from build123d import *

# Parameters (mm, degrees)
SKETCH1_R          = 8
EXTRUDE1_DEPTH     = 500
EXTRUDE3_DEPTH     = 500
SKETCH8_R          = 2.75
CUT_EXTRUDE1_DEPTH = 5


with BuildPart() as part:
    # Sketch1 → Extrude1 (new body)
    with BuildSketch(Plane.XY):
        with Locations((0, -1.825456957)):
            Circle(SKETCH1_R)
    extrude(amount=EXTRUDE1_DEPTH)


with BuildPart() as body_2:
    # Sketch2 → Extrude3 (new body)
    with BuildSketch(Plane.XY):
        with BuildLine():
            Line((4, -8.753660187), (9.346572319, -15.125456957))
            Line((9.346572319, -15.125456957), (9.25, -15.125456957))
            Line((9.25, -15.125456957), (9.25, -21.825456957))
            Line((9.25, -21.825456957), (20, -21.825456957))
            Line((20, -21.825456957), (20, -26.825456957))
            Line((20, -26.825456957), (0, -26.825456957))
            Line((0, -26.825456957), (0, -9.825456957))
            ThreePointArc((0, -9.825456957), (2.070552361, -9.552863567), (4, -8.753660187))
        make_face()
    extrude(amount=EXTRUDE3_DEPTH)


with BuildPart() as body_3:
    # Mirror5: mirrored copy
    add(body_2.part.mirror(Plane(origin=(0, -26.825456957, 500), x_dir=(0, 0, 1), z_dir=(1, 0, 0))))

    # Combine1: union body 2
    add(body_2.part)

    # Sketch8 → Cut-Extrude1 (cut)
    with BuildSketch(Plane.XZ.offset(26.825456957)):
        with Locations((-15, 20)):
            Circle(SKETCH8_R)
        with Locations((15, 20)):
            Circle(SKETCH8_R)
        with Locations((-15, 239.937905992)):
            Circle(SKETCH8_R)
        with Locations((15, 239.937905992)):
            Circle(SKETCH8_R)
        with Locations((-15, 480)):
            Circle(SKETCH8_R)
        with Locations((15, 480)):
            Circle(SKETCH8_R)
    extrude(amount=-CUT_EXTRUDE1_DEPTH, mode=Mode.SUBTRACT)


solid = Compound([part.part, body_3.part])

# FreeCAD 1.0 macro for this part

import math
import FreeCAD as App
import Part
import Sketcher

V = App.Vector
Q = App.Units.Quantity

doc = App.newDocument("Part")
body = doc.addObject("PartDesign::Body", "Body")

# Sketch on XY plane
sketch1 = doc.addObject("Sketcher::SketchObject", "Sketch")
body.addObject(sketch1)
sketch1.AttachmentSupport = (doc.XY_Plane, [""])
sketch1.MapMode = "FlatFace"
sketch1.addGeometry(Part.Circle(V(0, -1.825457, 0), V(0, 0, 1), 8), False)
sketch1.addConstraint(Sketcher.Constraint("PointOnObject", 0, 3, -2))
sketch1.addConstraint(Sketcher.Constraint("Diameter", 0, Q("16 mm")))
sketch1.addConstraint(Sketcher.Constraint("DistanceY", 0, 3, -1, 1, Q("1.825457 mm")))
pad1 = doc.addObject("PartDesign::Pad", "Pad")
body.addObject(pad1)
pad1.Profile = sketch1
pad1.Length = 500
body2 = doc.addObject("PartDesign::Body", "Body001")

# Sketch on XY plane
sketch2 = doc.addObject("Sketcher::SketchObject", "Sketch001")
body2.addObject(sketch2)
sketch2.AttachmentSupport = (doc.getObject("XY_Plane001"), [""])
sketch2.MapMode = "FlatFace"
sketch2.addGeometry(Part.LineSegment(V(9.346572, -15.125457, 0), V(4, -8.75366, 0)), False)
sketch2.addGeometry(Part.ArcOfCircle(Part.Circle(V(0, -1.825457, 0), V(0, 0, 1), 8), math.radians(-90), math.radians(-60)), False)
sketch2.addGeometry(Part.LineSegment(V(0, -9.825457, 0), V(0, -26.825457, 0)), False)
sketch2.addGeometry(Part.LineSegment(V(0, -26.825457, 0), V(20, -26.825457, 0)), False)
sketch2.addGeometry(Part.LineSegment(V(20, -26.825457, 0), V(20, -21.825457, 0)), False)
sketch2.addGeometry(Part.LineSegment(V(20, -21.825457, 0), V(9.25, -21.825457, 0)), False)
sketch2.addGeometry(Part.LineSegment(V(9.25, -21.825457, 0), V(9.25, -15.125457, 0)), False)
sketch2.addGeometry(Part.LineSegment(V(9.25, -15.125457, 0), V(9.346572, -15.125457, 0)), False)
sketch2.addConstraint(Sketcher.Constraint("Coincident", 0, 2, 1, 2))
sketch2.addConstraint(Sketcher.Constraint("Coincident", 1, 1, 2, 1))
sketch2.addConstraint(Sketcher.Constraint("Coincident", 2, 2, 3, 1))
sketch2.addConstraint(Sketcher.Constraint("Coincident", 3, 2, 4, 1))
sketch2.addConstraint(Sketcher.Constraint("Coincident", 4, 2, 5, 1))
sketch2.addConstraint(Sketcher.Constraint("Coincident", 5, 2, 6, 1))
sketch2.addConstraint(Sketcher.Constraint("Coincident", 6, 2, 7, 1))
sketch2.addConstraint(Sketcher.Constraint("Coincident", 7, 2, 0, 1))
sketch2.addConstraint(Sketcher.Constraint("Vertical", 2))
sketch2.addConstraint(Sketcher.Constraint("Horizontal", 3))
sketch2.addConstraint(Sketcher.Constraint("Vertical", 4))
sketch2.addConstraint(Sketcher.Constraint("Horizontal", 5))
sketch2.addConstraint(Sketcher.Constraint("Vertical", 6))
sketch2.addConstraint(Sketcher.Constraint("Horizontal", 7))
sketch2.addConstraint(Sketcher.Constraint("PointOnObject", 1, 3, -2))
sketch2.addConstraint(Sketcher.Constraint("PointOnObject", 1, 1, -2))
sketch2.addConstraint(Sketcher.Constraint("Radius", 1, Q("8 mm")))
sketch2.addConstraint(Sketcher.Constraint("DistanceX", 3, 1, 3, 2, Q("20 mm")))
sketch2.addConstraint(Sketcher.Constraint("DistanceY", 2, 2, 2, 1, Q("17 mm")))
sketch2.addConstraint(Sketcher.Constraint("DistanceY", 4, 1, 4, 2, Q("5 mm")))
sketch2.addConstraint(Sketcher.Constraint("Angle", 0, Q("130 deg")))
sketch2.addConstraint(Sketcher.Constraint("DistanceY", 6, 1, 6, 2, Q("6.7 mm")))
sketch2.addConstraint(Sketcher.Constraint("DistanceX", -1, 1, 0, 2, Q("4 mm")))
sketch2.addConstraint(Sketcher.Constraint("DistanceX", 5, 2, 5, 1, Q("10.75 mm")))
sketch2.addConstraint(Sketcher.Constraint("DistanceY", 0, 2, -1, 1, Q("8.75366 mm")))
pad2 = doc.addObject("PartDesign::Pad", "Pad001")
body2.addObject(pad2)
pad2.Profile = sketch2
pad2.Length = 500
body3 = doc.addObject("PartDesign::Body", "Body002")
doc.recompute()

mirroring = doc.addObject("Part::Mirroring", "Mirroring")
mirroring.Source = body2
mirroring.Base = V(0, -26.825457, 500)
mirroring.Normal = V(1, 0, 0)
body3.BaseFeature = mirroring
doc.recompute()

boolean = doc.addObject("PartDesign::Boolean", "Boolean")
body3.addObject(boolean)
boolean.Type = "Fuse"
boolean.addObjects([body2])

# Sketch on XZ plane
sketch3 = doc.addObject("Sketcher::SketchObject", "Sketch002")
body3.addObject(sketch3)
sketch3.AttachmentSupport = (doc.getObject("XZ_Plane002"), [""])
sketch3.MapMode = "FlatFace"
sketch3.AttachmentOffset = App.Placement(V(0, 0, 26.825457), App.Rotation())
sketch3.addGeometry(Part.Circle(V(-15, 20, 0), V(0, 0, 1), 2.75), False)
sketch3.addGeometry(Part.Circle(V(15, 20, 0), V(0, 0, 1), 2.75), False)
sketch3.addGeometry(Part.Circle(V(-15, 239.937906, 0), V(0, 0, 1), 2.75), False)
sketch3.addGeometry(Part.Circle(V(15, 239.937906, 0), V(0, 0, 1), 2.75), False)
sketch3.addGeometry(Part.Circle(V(-15, 480, 0), V(0, 0, 1), 2.75), False)
sketch3.addGeometry(Part.Circle(V(15, 480, 0), V(0, 0, 1), 2.75), False)
sketch3.addConstraint(Sketcher.Constraint("Equal", 0, 1))
sketch3.addConstraint(Sketcher.Constraint("Equal", 1, 2))
sketch3.addConstraint(Sketcher.Constraint("Equal", 2, 3))
sketch3.addConstraint(Sketcher.Constraint("Equal", 3, 4))
sketch3.addConstraint(Sketcher.Constraint("Equal", 4, 5))
sketch3.addConstraint(Sketcher.Constraint("Symmetric", 0, 3, 1, 3, -2))
sketch3.addConstraint(Sketcher.Constraint("Symmetric", 2, 3, 3, 3, -2))
sketch3.addConstraint(Sketcher.Constraint("Symmetric", 4, 3, 5, 3, -2))
sketch3.addConstraint(Sketcher.Constraint("Vertical", 0, 3, 2, 3))
sketch3.addConstraint(Sketcher.Constraint("Vertical", 2, 3, 4, 3))
sketch3.addConstraint(Sketcher.Constraint("Diameter", 0, Q("5.5 mm")))
sketch3.addConstraint(Sketcher.Constraint("DistanceX", 0, 3, -1, 1, Q("15 mm")))
sketch3.addConstraint(Sketcher.Constraint("DistanceY", -1, 1, 0, 3, Q("20 mm")))
sketch3.addConstraint(Sketcher.Constraint("DistanceY", -1, 1, 4, 3, Q("480 mm")))
sketch3.addConstraint(Sketcher.Constraint("DistanceY", -1, 1, 2, 3, Q("239.937906 mm")))
pocket1 = doc.addObject("PartDesign::Pocket", "Pocket")
body3.addObject(pocket1)
pocket1.Profile = sketch3
pocket1.Length = 5
mirroring.Visibility = False

doc.recompute()
